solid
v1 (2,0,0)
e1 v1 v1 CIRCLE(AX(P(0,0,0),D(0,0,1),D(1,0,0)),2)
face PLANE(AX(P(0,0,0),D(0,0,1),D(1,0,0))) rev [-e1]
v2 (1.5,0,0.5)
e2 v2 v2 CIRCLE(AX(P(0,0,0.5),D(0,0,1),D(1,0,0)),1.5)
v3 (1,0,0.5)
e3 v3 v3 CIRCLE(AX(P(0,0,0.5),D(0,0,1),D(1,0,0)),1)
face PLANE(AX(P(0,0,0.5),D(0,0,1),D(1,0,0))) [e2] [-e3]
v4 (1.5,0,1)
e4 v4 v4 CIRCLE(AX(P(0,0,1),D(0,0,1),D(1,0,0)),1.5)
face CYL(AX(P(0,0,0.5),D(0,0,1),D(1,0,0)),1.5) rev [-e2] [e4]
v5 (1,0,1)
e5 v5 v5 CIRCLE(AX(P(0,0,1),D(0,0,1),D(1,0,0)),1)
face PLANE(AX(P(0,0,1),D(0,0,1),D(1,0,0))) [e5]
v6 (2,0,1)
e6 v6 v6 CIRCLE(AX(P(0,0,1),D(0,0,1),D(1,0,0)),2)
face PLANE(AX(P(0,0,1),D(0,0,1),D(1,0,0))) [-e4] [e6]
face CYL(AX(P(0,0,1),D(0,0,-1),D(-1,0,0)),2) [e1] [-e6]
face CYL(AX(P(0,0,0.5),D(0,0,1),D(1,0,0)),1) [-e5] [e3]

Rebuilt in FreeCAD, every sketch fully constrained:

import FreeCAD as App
import Part
import Sketcher

V = App.Vector

doc = App.newDocument("Part")
body = doc.addObject("PartDesign::Body", "Body")

# Sketch on XY plane
sketch1 = body.newObject("Sketcher::SketchObject", "Sketch")
sketch1.AttachmentSupport = (doc.getObject("XY_Plane"), [""])
sketch1.MapMode = "FlatFace"
sketch1.addGeometry(Part.Circle(V(0, 0, 0), V(0, 0, 1), 2), False)
sketch1.addConstraint([
    Sketcher.Constraint("Coincident", 0, 3, -1, 1),
    Sketcher.Constraint("Diameter", 0, 4.0),
])
pad1 = body.newObject("PartDesign::Pad", "Pad")
pad1.Profile = sketch1
pad1.Length = 1

# Sketch on XY plane
sketch2 = body.newObject("Sketcher::SketchObject", "Sketch001")
sketch2.AttachmentSupport = (doc.getObject("XY_Plane"), [""])
sketch2.MapMode = "FlatFace"
sketch2.AttachmentOffset = App.Placement(V(0, 0, 1), App.Rotation())
sketch2.addGeometry([
    Part.Circle(V(0, 0, 0), V(0, 0, 1), 1.5),
    Part.Circle(V(0, 0, 0), V(0, 0, 1), 1),
], False)
sketch2.addConstraint([
    Sketcher.Constraint("Coincident", 0, 3, -1, 1),
    Sketcher.Constraint("Coincident", 1, 3, -1, 1),
    Sketcher.Constraint("Diameter", 0, 3.0),
    Sketcher.Constraint("Diameter", 1, 2.0),
])
pocket1 = body.newObject("PartDesign::Pocket", "Pocket")
pocket1.Profile = sketch2
pocket1.Length = 0.5

doc.recompute()
